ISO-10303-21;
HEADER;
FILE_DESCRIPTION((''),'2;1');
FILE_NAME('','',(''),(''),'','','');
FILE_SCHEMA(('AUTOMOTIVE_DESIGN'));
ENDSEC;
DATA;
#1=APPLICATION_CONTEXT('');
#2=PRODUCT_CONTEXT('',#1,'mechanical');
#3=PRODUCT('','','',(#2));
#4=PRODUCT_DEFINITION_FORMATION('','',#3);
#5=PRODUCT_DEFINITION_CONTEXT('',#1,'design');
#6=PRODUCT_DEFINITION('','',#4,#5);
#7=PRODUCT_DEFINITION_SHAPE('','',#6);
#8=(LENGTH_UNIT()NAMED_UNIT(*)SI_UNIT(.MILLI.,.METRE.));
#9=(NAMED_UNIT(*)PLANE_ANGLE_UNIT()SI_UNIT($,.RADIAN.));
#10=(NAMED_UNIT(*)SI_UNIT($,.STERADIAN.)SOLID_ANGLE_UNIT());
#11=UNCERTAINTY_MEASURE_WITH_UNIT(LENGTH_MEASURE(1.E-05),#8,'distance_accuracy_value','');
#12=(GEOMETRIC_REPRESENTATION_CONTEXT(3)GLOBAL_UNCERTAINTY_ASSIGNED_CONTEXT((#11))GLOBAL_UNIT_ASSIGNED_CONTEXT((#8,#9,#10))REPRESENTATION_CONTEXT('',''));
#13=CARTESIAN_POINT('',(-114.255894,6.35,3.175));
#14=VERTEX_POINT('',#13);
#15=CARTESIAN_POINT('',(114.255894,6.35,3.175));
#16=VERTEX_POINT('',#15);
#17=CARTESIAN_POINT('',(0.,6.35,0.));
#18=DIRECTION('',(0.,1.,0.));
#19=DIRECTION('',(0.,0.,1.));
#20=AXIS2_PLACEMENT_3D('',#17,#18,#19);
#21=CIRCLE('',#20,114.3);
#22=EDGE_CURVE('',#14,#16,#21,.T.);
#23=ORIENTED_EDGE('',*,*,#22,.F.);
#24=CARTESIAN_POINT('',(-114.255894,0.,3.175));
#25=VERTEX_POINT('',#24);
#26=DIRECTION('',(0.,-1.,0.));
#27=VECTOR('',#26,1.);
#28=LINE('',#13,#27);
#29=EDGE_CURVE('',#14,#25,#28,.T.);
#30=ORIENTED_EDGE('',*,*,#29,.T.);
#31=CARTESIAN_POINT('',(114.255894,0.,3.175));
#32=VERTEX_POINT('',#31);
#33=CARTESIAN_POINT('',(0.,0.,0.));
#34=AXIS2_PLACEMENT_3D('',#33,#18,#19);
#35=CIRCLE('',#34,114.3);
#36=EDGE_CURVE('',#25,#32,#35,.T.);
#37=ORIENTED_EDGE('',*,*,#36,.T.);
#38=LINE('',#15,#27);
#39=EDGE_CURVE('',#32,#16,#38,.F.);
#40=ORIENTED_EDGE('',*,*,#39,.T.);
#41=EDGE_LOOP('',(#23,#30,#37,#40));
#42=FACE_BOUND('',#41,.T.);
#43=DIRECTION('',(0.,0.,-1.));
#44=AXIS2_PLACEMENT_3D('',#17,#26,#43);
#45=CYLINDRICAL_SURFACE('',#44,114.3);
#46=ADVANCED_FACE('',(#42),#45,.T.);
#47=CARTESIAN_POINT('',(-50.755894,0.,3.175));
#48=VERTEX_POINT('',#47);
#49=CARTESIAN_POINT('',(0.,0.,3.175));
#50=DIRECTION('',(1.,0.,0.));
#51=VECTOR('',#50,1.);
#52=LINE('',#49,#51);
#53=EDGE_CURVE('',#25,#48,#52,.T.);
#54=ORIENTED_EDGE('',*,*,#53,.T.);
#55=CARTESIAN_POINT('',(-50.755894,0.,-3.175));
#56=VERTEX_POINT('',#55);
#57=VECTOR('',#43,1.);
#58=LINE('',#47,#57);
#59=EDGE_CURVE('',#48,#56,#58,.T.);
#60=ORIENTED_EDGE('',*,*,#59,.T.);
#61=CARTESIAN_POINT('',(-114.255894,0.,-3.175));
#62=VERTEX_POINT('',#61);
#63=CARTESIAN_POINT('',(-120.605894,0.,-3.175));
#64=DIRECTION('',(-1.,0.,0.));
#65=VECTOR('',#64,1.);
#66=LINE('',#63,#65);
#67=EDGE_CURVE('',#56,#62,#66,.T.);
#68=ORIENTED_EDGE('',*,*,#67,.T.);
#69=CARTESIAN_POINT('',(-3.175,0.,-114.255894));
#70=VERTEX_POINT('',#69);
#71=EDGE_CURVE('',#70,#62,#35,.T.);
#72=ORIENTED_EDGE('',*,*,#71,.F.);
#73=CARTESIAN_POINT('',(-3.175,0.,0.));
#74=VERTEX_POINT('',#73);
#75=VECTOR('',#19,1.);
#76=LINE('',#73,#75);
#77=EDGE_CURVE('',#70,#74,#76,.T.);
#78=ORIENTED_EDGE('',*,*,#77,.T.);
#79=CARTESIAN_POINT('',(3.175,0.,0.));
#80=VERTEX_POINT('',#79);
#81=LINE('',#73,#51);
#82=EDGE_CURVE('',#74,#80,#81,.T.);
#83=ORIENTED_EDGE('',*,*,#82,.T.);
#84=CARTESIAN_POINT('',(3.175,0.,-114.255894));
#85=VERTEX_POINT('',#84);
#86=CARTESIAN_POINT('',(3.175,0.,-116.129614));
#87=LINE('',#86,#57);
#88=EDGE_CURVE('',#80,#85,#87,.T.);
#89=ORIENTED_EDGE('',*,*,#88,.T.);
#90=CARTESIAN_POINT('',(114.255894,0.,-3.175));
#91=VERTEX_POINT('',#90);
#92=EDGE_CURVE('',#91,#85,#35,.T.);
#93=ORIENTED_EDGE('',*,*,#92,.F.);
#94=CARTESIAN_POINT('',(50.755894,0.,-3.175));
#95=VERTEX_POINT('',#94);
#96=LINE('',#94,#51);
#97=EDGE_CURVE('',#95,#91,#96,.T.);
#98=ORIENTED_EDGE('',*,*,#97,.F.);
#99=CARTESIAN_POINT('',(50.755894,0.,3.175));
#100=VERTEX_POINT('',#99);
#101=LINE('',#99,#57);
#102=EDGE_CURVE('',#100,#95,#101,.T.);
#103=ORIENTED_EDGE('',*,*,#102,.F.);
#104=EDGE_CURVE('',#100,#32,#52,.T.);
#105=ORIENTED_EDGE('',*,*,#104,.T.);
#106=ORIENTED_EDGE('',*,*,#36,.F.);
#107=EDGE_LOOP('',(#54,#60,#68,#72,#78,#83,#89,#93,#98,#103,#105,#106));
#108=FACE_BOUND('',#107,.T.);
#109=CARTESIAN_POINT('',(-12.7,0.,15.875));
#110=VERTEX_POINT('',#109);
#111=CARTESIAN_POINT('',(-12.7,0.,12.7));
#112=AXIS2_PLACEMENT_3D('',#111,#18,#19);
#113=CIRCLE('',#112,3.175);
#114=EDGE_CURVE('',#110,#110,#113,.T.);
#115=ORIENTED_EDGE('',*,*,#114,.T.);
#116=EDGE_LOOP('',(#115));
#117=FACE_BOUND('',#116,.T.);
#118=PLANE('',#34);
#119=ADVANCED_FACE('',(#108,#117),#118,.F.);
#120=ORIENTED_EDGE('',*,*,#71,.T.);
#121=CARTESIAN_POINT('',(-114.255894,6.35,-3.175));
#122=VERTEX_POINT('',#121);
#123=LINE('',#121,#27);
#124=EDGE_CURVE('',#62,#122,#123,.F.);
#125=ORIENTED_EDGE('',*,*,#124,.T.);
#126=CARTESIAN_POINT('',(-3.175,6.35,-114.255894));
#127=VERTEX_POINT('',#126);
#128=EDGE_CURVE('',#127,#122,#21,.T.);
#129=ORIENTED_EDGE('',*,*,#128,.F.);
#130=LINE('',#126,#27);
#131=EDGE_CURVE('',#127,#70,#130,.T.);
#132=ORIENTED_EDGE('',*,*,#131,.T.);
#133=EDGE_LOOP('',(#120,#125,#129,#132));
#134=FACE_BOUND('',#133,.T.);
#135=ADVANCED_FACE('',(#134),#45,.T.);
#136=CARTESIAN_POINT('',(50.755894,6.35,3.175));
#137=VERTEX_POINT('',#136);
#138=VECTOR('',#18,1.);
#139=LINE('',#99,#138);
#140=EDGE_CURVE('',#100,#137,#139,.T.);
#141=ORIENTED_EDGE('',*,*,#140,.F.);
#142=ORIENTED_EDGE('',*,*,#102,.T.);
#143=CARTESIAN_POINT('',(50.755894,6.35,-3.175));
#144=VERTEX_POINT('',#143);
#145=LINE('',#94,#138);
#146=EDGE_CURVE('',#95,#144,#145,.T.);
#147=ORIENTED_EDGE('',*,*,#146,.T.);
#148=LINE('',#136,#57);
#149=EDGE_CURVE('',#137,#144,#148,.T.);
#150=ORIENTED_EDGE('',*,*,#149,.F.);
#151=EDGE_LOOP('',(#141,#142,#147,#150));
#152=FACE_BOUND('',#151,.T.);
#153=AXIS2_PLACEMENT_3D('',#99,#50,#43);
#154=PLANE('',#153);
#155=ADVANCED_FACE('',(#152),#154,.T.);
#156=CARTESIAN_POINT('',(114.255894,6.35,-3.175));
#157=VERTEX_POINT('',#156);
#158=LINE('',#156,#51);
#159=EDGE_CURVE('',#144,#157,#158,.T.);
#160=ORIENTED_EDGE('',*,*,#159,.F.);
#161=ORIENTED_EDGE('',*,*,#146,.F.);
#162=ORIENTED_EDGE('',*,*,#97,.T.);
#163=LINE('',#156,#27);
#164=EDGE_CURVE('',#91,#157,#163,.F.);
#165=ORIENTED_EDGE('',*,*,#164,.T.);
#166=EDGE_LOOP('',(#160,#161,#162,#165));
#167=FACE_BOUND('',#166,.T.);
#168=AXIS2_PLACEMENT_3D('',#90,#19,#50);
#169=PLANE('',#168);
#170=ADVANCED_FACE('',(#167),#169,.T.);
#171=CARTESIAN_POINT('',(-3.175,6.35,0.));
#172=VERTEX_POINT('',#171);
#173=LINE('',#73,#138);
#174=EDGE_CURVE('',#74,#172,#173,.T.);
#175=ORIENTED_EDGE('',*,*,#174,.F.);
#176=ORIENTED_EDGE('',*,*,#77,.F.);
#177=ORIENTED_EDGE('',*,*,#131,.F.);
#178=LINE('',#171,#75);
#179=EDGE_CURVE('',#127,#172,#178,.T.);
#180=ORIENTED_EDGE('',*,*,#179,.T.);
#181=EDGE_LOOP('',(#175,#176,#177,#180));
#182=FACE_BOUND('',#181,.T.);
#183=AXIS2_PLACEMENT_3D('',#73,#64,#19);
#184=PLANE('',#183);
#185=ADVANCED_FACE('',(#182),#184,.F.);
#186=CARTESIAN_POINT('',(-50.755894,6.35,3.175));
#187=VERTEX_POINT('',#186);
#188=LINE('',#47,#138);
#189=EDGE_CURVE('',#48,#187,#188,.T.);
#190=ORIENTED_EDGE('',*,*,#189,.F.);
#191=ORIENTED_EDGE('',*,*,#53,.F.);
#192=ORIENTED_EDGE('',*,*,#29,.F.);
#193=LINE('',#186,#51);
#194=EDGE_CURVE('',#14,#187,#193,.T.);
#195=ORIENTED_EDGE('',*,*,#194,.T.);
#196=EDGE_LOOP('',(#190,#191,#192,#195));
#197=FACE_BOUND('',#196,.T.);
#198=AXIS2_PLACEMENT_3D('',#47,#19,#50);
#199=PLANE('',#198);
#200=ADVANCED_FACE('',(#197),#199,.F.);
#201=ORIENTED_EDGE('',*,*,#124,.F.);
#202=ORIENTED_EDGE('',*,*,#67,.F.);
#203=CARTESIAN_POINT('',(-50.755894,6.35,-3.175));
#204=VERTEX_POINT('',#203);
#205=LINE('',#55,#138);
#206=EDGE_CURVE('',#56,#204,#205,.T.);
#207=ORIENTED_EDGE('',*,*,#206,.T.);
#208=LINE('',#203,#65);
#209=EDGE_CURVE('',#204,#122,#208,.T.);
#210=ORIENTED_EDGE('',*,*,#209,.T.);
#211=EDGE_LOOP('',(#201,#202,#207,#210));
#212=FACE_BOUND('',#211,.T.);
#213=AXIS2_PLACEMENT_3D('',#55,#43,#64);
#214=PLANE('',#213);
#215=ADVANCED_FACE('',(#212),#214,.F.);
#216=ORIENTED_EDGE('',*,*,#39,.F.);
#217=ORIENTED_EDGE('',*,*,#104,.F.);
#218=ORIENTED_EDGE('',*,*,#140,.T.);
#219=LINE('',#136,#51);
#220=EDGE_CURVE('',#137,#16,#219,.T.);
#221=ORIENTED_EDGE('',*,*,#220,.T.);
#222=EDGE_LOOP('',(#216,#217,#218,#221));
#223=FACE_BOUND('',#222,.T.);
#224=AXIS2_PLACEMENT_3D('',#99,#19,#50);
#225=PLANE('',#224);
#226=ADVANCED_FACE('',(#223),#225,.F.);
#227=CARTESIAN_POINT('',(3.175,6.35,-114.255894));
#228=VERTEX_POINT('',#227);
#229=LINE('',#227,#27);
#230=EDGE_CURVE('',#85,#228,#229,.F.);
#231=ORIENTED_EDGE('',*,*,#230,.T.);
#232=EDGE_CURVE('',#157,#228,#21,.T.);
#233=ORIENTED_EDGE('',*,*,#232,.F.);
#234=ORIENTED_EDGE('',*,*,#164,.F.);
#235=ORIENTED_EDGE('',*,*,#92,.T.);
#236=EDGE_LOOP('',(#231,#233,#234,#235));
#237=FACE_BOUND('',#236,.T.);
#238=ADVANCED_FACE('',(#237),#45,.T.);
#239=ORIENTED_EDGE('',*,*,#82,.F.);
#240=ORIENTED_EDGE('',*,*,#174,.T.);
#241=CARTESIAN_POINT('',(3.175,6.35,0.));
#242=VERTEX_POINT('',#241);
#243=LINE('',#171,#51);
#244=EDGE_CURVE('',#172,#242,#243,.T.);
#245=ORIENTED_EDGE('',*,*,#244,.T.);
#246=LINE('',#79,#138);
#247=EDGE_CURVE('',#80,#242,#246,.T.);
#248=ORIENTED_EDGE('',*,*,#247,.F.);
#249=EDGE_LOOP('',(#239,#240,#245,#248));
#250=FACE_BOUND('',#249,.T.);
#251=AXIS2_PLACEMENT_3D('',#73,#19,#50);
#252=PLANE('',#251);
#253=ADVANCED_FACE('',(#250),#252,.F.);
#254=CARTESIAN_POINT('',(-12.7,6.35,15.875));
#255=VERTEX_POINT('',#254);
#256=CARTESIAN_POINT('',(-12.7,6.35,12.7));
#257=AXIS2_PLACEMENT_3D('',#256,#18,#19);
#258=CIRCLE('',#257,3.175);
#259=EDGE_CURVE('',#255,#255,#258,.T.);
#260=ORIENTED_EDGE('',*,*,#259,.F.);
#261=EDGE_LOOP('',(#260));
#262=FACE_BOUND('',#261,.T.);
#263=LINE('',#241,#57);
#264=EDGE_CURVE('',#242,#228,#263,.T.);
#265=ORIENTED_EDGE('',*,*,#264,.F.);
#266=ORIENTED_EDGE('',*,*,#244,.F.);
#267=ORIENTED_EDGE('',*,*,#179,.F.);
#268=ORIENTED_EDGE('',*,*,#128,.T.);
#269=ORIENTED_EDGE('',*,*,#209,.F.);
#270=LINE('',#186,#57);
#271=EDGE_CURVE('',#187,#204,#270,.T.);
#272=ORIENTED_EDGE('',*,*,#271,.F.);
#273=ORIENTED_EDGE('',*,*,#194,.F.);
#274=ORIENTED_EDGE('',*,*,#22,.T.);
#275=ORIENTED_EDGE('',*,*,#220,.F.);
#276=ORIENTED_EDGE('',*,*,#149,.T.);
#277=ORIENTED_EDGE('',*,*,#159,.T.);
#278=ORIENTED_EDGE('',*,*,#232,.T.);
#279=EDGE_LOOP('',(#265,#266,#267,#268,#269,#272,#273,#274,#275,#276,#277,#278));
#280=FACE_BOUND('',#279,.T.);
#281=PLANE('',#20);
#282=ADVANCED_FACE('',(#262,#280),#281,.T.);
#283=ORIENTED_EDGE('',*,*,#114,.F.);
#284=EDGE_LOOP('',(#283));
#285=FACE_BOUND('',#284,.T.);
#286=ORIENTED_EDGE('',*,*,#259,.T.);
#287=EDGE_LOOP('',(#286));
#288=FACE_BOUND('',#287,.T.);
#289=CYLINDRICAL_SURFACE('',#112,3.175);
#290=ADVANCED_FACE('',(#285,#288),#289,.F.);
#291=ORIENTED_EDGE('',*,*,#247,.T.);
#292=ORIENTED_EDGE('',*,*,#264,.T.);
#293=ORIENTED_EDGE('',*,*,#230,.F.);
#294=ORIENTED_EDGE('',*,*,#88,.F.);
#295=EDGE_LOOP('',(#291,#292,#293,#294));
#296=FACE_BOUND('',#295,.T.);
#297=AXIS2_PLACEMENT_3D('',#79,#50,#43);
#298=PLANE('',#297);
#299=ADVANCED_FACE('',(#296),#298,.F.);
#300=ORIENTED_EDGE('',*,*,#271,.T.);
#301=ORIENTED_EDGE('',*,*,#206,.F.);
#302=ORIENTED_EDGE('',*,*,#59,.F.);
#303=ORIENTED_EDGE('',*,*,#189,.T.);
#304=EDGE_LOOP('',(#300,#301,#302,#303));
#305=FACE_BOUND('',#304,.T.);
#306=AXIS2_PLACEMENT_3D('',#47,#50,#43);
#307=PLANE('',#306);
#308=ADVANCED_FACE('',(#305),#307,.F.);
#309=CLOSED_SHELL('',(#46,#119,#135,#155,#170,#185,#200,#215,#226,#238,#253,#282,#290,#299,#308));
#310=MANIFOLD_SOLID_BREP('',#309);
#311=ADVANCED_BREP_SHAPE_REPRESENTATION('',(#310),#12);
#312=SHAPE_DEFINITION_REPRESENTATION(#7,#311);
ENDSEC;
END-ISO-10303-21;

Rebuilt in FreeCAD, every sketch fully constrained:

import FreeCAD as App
import Part
import Sketcher

V = App.Vector
Q = App.Units.Quantity

doc = App.newDocument("Part")
params = doc.addObject("Spreadsheet::Sheet", "Params")
for row, (alias, value) in enumerate([
    ("sketch1_diameter", "9 in"),
    ("pad1_length", "0.25 in"),
    ("sketch2_width", "2.75 in"),
    ("sketch2_height", "0.25 in"),
    ("sketch3_width", "2.75 in"),
    ("sketch3_height", "0.25 in"),
    ("sketch4_width", "0.25 in"),
    ("sketch5_diameter", "0.25 in"),
], start=1):
    params.set(f"A{row}", alias)
    params.set(f"B{row}", "=" + value)
    params.setAlias(f"B{row}", alias)

body = doc.addObject("PartDesign::Body", "Body")

# Sketch on XZ plane
sketch1 = body.newObject("Sketcher::SketchObject", "Sketch")
sketch1.AttachmentSupport = (doc.getObject("XZ_Plane"), [""])
sketch1.MapMode = "FlatFace"
sketch1.addGeometry(Part.Circle(V(0, 0, 0), V(0, 0, 1), 114.3), False)
sketch1.addConstraint([
    Sketcher.Constraint("Coincident", 0, 3, -1, 1),
    Sketcher.Constraint("Diameter", 0, Q("9 in")),
])
sketch1.setExpression("Constraints[1]", "Params.sketch1_diameter")
pad1 = body.newObject("PartDesign::Pad", "Pad")
pad1.Profile = sketch1
pad1.setExpression("Length", "Params.pad1_length")
pad1.Reversed = True

# Sketch on XZ plane
sketch2 = body.newObject("Sketcher::SketchObject", "Sketch001")
sketch2.AttachmentSupport = (doc.getObject("XZ_Plane"), [""])
sketch2.MapMode = "FlatFace"
sketch2.AttachmentOffset = App.Placement(V(0, 0, -0.25 * 25.4), App.Rotation())
sketch2.addGeometry([
    Part.LineSegment(V(120.605894, -3.175, 0), V(50.755894, -3.175, 0)),
    Part.LineSegment(V(50.755894, -3.175, 0), V(50.755894, 3.175, 0)),
    Part.LineSegment(V(50.755894, 3.175, 0), V(120.605894, 3.175, 0)),
    Part.LineSegment(V(120.605894, 3.175, 0), V(120.605894, -3.175, 0)),
], False)
sketch2.addConstraint([
    Sketcher.Constraint("Coincident", 0, 2, 1, 1),
    Sketcher.Constraint("Coincident", 1, 2, 2, 1),
    Sketcher.Constraint("Coincident", 2, 2, 3, 1),
    Sketcher.Constraint("Coincident", 3, 2, 0, 1),
    Sketcher.Constraint("Horizontal", 0),
    Sketcher.Constraint("Vertical", 1),
    Sketcher.Constraint("Horizontal", 2),
    Sketcher.Constraint("Vertical", 3),
    Sketcher.Constraint("DistanceX", 0, 2, 0, 1, Q("2.75 in")),
    Sketcher.Constraint("DistanceY", 1, 1, 1, 2, Q("0.25 in")),
    Sketcher.Constraint("DistanceY", 0, 2, -1, 1, Q("0.125 in")),
    Sketcher.Constraint("DistanceX", -1, 1, 0, 2, 50.755894),
])
sketch2.setExpression("Constraints[8]", "Params.sketch2_width")
sketch2.setExpression("Constraints[9]", "Params.sketch2_height")
pocket1 = body.newObject("PartDesign::Pocket", "Pocket")
pocket1.Profile = sketch2
pocket1.Type = "ThroughAll"
pocket1.Reversed = True

# Sketch on XZ plane
sketch3 = body.newObject("Sketcher::SketchObject", "Sketch002")
sketch3.AttachmentSupport = (doc.getObject("XZ_Plane"), [""])
sketch3.MapMode = "FlatFace"
sketch3.AttachmentOffset = App.Placement(V(0, 0, -0.25 * 25.4), App.Rotation())
sketch3.addGeometry([
    Part.LineSegment(V(-120.605894, 3.175, 0), V(-50.755894, 3.175, 0)),
    Part.LineSegment(V(-50.755894, 3.175, 0), V(-50.755894, -3.175, 0)),
    Part.LineSegment(V(-50.755894, -3.175, 0), V(-120.605894, -3.175, 0)),
    Part.LineSegment(V(-120.605894, -3.175, 0), V(-120.605894, 3.175, 0)),
], False)
sketch3.addConstraint([
    Sketcher.Constraint("Coincident", 0, 2, 1, 1),
    Sketcher.Constraint("Coincident", 1, 2, 2, 1),
    Sketcher.Constraint("Coincident", 2, 2, 3, 1),
    Sketcher.Constraint("Coincident", 3, 2, 0, 1),
    Sketcher.Constraint("Horizontal", 0),
    Sketcher.Constraint("Vertical", 1),
    Sketcher.Constraint("Horizontal", 2),
    Sketcher.Constraint("Vertical", 3),
    Sketcher.Constraint("DistanceX", 0, 1, 0, 2, Q("2.75 in")),
    Sketcher.Constraint("DistanceY", 1, 2, 1, 1, Q("0.25 in")),
    Sketcher.Constraint("DistanceY", -1, 1, 0, 2, Q("0.125 in")),
    Sketcher.Constraint("DistanceX", 0, 2, -1, 1, 50.755894),
])
sketch3.setExpression("Constraints[8]", "Params.sketch3_width")
sketch3.setExpression("Constraints[9]", "Params.sketch3_height")
pocket2 = body.newObject("PartDesign::Pocket", "Pocket001")
pocket2.Profile = sketch3
pocket2.Type = "ThroughAll"
pocket2.Reversed = True

# Sketch on XZ plane
sketch4 = body.newObject("Sketcher::SketchObject", "Sketch003")
sketch4.AttachmentSupport = (doc.getObject("XZ_Plane"), [""])
sketch4.MapMode = "FlatFace"
sketch4.AttachmentOffset = App.Placement(V(0, 0, -0.25 * 25.4), App.Rotation())
sketch4.addGeometry([
    Part.LineSegment(V(-3.175, 0, 0), V(3.175, 0, 0)),
    Part.LineSegment(V(3.175, 0, 0), V(3.175, -116.129614, 0)),
    Part.LineSegment(V(3.175, -116.129614, 0), V(-3.175, -116.129614, 0)),
    Part.LineSegment(V(-3.175, -116.129614, 0), V(-3.175, 0, 0)),
], False)
sketch4.addConstraint([
    Sketcher.Constraint("Coincident", 0, 2, 1, 1),
    Sketcher.Constraint("Coincident", 1, 2, 2, 1),
    Sketcher.Constraint("Coincident", 2, 2, 3, 1),
    Sketcher.Constraint("Coincident", 3, 2, 0, 1),
    Sketcher.Constraint("Horizontal", 0),
    Sketcher.Constraint("Vertical", 1),
    Sketcher.Constraint("Horizontal", 2),
    Sketcher.Constraint("Vertical", 3),
    Sketcher.Constraint("Symmetric", 0, 2, 3, 2, -1, 1),
    Sketcher.Constraint("DistanceX", 0, 1, 0, 2, Q("0.25 in")),
    Sketcher.Constraint("DistanceY", 1, 2, 1, 1, 116.129614),
])
sketch4.setExpression("Constraints[9]", "Params.sketch4_width")
pocket3 = body.newObject("PartDesign::Pocket", "Pocket002")
pocket3.Profile = sketch4
pocket3.Type = "ThroughAll"
pocket3.Reversed = True

# Sketch on XZ plane
sketch5 = body.newObject("Sketcher::SketchObject", "Sketch004")
sketch5.AttachmentSupport = (doc.getObject("XZ_Plane"), [""])
sketch5.MapMode = "FlatFace"
sketch5.AttachmentOffset = App.Placement(V(0, 0, -0.25 * 25.4), App.Rotation())
sketch5.addGeometry(Part.Circle(V(-12.7, 12.7, 0), V(0, 0, 1), 3.175), False)
sketch5.addConstraint([
    Sketcher.Constraint("Diameter", 0, Q("0.25 in")),
    Sketcher.Constraint("DistanceX", 0, 3, -1, 1, Q("0.5 in")),
    Sketcher.Constraint("DistanceY", -1, 1, 0, 3, Q("0.5 in")),
])
sketch5.setExpression("Constraints[0]", "Params.sketch5_diameter")
pocket4 = body.newObject("PartDesign::Pocket", "Pocket003")
pocket4.Profile = sketch5
pocket4.Type = "ThroughAll"
pocket4.Reversed = True

doc.recompute()
